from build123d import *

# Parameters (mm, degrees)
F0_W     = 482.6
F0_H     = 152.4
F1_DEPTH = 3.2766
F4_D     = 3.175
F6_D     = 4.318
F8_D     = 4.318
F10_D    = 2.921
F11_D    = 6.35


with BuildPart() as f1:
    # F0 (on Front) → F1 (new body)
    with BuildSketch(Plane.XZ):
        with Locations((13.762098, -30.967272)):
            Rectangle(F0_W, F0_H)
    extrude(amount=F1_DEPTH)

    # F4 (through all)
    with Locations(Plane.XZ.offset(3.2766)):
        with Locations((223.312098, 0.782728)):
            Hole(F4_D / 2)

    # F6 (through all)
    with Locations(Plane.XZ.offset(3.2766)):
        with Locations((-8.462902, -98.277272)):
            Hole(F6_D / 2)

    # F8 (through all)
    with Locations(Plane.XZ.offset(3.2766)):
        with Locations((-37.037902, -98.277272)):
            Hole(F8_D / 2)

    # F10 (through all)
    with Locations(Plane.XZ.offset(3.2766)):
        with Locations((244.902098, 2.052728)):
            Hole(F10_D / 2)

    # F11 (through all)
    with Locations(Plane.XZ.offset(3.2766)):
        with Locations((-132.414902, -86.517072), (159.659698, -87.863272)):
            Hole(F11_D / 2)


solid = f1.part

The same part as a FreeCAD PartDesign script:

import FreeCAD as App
import Part
import Sketcher
Q = App.Units.Quantity

doc = App.newDocument("Part")
body = doc.addObject("PartDesign::Body", "Body")

sketch1 = doc.addObject("Sketcher::SketchObject", "Sketch")
body.addObject(sketch1)
sketch1.AttachmentSupport = (doc.XZ_Plane, [""])
sketch1.MapMode = "FlatFace"
sketch1.addGeometry([
    Part.LineSegment(App.Vector(-228, 45, 0), App.Vector(-228, -107, 0)),
    Part.LineSegment(App.Vector(-228, -107, 0), App.Vector(255, -107, 0)),
    Part.LineSegment(App.Vector(255, -107, 0), App.Vector(255, 45, 0)),
    Part.LineSegment(App.Vector(255, 45, 0), App.Vector(-228, 45, 0)),
], False)
sketch1.addConstraint([
    Sketcher.Constraint("Coincident", 0, 2, 1, 1),
    Sketcher.Constraint("Coincident", 1, 2, 2, 1),
    Sketcher.Constraint("Coincident", 2, 2, 3, 1),
    Sketcher.Constraint("Coincident", 3, 2, 0, 1),
    Sketcher.Constraint("Vertical", 0),
    Sketcher.Constraint("Horizontal", 1),
    Sketcher.Constraint("Vertical", 2),
    Sketcher.Constraint("Horizontal", 3),
    Sketcher.Constraint("DistanceX", 1, 1, 1, 2, Q("19 in")),
    Sketcher.Constraint("DistanceY", 0, 2, 0, 1, Q("6 in")),
    Sketcher.Constraint("DistanceX", 0, 2, -1, 1, 227.537902),
    Sketcher.Constraint("DistanceY", 0, 2, -1, 1, 107.167272),
])
pad1 = doc.addObject("PartDesign::Pad", "Pad")
body.addObject(pad1)
pad1.Profile = sketch1
pad1.Length = Q("0.129 in")

sketch2 = doc.addObject("Sketcher::SketchObject", "Sketch001")
body.addObject(sketch2)
sketch2.AttachmentSupport = (doc.XZ_Plane, [""])
sketch2.MapMode = "FlatFace"
sketch2.AttachmentOffset = App.Placement(App.Vector(0, 0, 0.129 * 25.4), App.Rotation())
sketch2.addGeometry(Part.Circle(App.Vector(223.3, 0.8, 0), App.Vector(0, 0, 1), 1.6), False)
sketch2.addConstraint([
    Sketcher.Constraint("Diameter", 0, Q("0.125 in")),
    Sketcher.Constraint("DistanceX", -1, 1, 0, 3, 223.312098),
    Sketcher.Constraint("DistanceY", -1, 1, 0, 3, 0.782728),
])
doc.recompute()
hole = doc.addObject("PartDesign::Hole", "Hole")
body.addObject(hole)
hole.Profile = sketch2
hole.ThreadType = "None"
hole.Diameter = Q("0.125 in")
hole.DepthType = "ThroughAll"

sketch3 = doc.addObject("Sketcher::SketchObject", "Sketch002")
body.addObject(sketch3)
sketch3.AttachmentSupport = (doc.XZ_Plane, [""])
sketch3.MapMode = "FlatFace"
sketch3.AttachmentOffset = App.Placement(App.Vector(0, 0, 0.129 * 25.4), App.Rotation())
sketch3.addGeometry(Part.Circle(App.Vector(-8.5, -98.3, 0), App.Vector(0, 0, 1), 2.2), False)
sketch3.addConstraint([
    Sketcher.Constraint("Diameter", 0, Q("0.17 in")),
    Sketcher.Constraint("DistanceY", 0, 3, -1, 1, 98.277272),
    Sketcher.Constraint("DistanceX", 0, 3, -1, 1, 8.462902),
])
doc.recompute()
hole2 = doc.addObject("PartDesign::Hole", "Hole001")
body.addObject(hole2)
hole2.Profile = sketch3
hole2.ThreadType = "None"
hole2.Diameter = Q("0.17 in")
hole2.DepthType = "ThroughAll"

sketch4 = doc.addObject("Sketcher::SketchObject", "Sketch003")
body.addObject(sketch4)
sketch4.AttachmentSupport = (doc.XZ_Plane, [""])
sketch4.MapMode = "FlatFace"
sketch4.AttachmentOffset = App.Placement(App.Vector(0, 0, 0.129 * 25.4), App.Rotation())
sketch4.addGeometry(Part.Circle(App.Vector(-37, -98.3, 0), App.Vector(0, 0, 1), 2.2), False)
sketch4.addConstraint([
    Sketcher.Constraint("Diameter", 0, Q("0.17 in")),
    Sketcher.Constraint("DistanceY", 0, 3, -1, 1, 98.277272),
    Sketcher.Constraint("DistanceX", 0, 3, -1, 1, 37.037902),
])
doc.recompute()
hole3 = doc.addObject("PartDesign::Hole", "Hole002")
body.addObject(hole3)
hole3.Profile = sketch4
hole3.ThreadType = "None"
hole3.Diameter = Q("0.17 in")
hole3.DepthType = "ThroughAll"

sketch5 = doc.addObject("Sketcher::SketchObject", "Sketch004")
body.addObject(sketch5)
sketch5.AttachmentSupport = (doc.XZ_Plane, [""])
sketch5.MapMode = "FlatFace"
sketch5.AttachmentOffset = App.Placement(App.Vector(0, 0, 0.129 * 25.4), App.Rotation())
sketch5.addGeometry(Part.Circle(App.Vector(244.9, 2.1, 0), App.Vector(0, 0, 1), 1.5), False)
sketch5.addConstraint([
    Sketcher.Constraint("Diameter", 0, Q("0.115 in")),
    Sketcher.Constraint("DistanceX", -1, 1, 0, 3, 244.902098),
    Sketcher.Constraint("DistanceY", -1, 1, 0, 3, 2.052728),
])
doc.recompute()
hole4 = doc.addObject("PartDesign::Hole", "Hole003")
body.addObject(hole4)
hole4.Profile = sketch5
hole4.ThreadType = "None"
hole4.Diameter = Q("0.115 in")
hole4.DepthType = "ThroughAll"

sketch6 = doc.addObject("Sketcher::SketchObject", "Sketch005")
body.addObject(sketch6)
sketch6.AttachmentSupport = (doc.XZ_Plane, [""])
sketch6.MapMode = "FlatFace"
sketch6.AttachmentOffset = App.Placement(App.Vector(0, 0, 0.129 * 25.4), App.Rotation())
sketch6.addGeometry([
    Part.Circle(App.Vector(-132.4, -86.5, 0), App.Vector(0, 0, 1), 3.2),
    Part.Circle(App.Vector(159.7, -87.9, 0), App.Vector(0, 0, 1), 3.2),
], False)
sketch6.addConstraint([
    Sketcher.Constraint("Equal", 0, 1),
    Sketcher.Constraint("Diameter", 0, Q("0.25 in")),
    Sketcher.Constraint("DistanceX", 0, 3, 1, 3, Q("11.499 in")),
    Sketcher.Constraint("DistanceY", 1, 3, 0, 3, Q("0.053 in")),
    Sketcher.Constraint("DistanceX", -1, 1, 1, 3, 159.659698),
    Sketcher.Constraint("DistanceY", 0, 3, -1, 1, 86.517072),
])
doc.recompute()
hole5 = doc.addObject("PartDesign::Hole", "Hole004")
body.addObject(hole5)
hole5.Profile = sketch6
hole5.ThreadType = "None"
hole5.Diameter = Q("0.25 in")
hole5.DepthType = "ThroughAll"

doc.recompute()
